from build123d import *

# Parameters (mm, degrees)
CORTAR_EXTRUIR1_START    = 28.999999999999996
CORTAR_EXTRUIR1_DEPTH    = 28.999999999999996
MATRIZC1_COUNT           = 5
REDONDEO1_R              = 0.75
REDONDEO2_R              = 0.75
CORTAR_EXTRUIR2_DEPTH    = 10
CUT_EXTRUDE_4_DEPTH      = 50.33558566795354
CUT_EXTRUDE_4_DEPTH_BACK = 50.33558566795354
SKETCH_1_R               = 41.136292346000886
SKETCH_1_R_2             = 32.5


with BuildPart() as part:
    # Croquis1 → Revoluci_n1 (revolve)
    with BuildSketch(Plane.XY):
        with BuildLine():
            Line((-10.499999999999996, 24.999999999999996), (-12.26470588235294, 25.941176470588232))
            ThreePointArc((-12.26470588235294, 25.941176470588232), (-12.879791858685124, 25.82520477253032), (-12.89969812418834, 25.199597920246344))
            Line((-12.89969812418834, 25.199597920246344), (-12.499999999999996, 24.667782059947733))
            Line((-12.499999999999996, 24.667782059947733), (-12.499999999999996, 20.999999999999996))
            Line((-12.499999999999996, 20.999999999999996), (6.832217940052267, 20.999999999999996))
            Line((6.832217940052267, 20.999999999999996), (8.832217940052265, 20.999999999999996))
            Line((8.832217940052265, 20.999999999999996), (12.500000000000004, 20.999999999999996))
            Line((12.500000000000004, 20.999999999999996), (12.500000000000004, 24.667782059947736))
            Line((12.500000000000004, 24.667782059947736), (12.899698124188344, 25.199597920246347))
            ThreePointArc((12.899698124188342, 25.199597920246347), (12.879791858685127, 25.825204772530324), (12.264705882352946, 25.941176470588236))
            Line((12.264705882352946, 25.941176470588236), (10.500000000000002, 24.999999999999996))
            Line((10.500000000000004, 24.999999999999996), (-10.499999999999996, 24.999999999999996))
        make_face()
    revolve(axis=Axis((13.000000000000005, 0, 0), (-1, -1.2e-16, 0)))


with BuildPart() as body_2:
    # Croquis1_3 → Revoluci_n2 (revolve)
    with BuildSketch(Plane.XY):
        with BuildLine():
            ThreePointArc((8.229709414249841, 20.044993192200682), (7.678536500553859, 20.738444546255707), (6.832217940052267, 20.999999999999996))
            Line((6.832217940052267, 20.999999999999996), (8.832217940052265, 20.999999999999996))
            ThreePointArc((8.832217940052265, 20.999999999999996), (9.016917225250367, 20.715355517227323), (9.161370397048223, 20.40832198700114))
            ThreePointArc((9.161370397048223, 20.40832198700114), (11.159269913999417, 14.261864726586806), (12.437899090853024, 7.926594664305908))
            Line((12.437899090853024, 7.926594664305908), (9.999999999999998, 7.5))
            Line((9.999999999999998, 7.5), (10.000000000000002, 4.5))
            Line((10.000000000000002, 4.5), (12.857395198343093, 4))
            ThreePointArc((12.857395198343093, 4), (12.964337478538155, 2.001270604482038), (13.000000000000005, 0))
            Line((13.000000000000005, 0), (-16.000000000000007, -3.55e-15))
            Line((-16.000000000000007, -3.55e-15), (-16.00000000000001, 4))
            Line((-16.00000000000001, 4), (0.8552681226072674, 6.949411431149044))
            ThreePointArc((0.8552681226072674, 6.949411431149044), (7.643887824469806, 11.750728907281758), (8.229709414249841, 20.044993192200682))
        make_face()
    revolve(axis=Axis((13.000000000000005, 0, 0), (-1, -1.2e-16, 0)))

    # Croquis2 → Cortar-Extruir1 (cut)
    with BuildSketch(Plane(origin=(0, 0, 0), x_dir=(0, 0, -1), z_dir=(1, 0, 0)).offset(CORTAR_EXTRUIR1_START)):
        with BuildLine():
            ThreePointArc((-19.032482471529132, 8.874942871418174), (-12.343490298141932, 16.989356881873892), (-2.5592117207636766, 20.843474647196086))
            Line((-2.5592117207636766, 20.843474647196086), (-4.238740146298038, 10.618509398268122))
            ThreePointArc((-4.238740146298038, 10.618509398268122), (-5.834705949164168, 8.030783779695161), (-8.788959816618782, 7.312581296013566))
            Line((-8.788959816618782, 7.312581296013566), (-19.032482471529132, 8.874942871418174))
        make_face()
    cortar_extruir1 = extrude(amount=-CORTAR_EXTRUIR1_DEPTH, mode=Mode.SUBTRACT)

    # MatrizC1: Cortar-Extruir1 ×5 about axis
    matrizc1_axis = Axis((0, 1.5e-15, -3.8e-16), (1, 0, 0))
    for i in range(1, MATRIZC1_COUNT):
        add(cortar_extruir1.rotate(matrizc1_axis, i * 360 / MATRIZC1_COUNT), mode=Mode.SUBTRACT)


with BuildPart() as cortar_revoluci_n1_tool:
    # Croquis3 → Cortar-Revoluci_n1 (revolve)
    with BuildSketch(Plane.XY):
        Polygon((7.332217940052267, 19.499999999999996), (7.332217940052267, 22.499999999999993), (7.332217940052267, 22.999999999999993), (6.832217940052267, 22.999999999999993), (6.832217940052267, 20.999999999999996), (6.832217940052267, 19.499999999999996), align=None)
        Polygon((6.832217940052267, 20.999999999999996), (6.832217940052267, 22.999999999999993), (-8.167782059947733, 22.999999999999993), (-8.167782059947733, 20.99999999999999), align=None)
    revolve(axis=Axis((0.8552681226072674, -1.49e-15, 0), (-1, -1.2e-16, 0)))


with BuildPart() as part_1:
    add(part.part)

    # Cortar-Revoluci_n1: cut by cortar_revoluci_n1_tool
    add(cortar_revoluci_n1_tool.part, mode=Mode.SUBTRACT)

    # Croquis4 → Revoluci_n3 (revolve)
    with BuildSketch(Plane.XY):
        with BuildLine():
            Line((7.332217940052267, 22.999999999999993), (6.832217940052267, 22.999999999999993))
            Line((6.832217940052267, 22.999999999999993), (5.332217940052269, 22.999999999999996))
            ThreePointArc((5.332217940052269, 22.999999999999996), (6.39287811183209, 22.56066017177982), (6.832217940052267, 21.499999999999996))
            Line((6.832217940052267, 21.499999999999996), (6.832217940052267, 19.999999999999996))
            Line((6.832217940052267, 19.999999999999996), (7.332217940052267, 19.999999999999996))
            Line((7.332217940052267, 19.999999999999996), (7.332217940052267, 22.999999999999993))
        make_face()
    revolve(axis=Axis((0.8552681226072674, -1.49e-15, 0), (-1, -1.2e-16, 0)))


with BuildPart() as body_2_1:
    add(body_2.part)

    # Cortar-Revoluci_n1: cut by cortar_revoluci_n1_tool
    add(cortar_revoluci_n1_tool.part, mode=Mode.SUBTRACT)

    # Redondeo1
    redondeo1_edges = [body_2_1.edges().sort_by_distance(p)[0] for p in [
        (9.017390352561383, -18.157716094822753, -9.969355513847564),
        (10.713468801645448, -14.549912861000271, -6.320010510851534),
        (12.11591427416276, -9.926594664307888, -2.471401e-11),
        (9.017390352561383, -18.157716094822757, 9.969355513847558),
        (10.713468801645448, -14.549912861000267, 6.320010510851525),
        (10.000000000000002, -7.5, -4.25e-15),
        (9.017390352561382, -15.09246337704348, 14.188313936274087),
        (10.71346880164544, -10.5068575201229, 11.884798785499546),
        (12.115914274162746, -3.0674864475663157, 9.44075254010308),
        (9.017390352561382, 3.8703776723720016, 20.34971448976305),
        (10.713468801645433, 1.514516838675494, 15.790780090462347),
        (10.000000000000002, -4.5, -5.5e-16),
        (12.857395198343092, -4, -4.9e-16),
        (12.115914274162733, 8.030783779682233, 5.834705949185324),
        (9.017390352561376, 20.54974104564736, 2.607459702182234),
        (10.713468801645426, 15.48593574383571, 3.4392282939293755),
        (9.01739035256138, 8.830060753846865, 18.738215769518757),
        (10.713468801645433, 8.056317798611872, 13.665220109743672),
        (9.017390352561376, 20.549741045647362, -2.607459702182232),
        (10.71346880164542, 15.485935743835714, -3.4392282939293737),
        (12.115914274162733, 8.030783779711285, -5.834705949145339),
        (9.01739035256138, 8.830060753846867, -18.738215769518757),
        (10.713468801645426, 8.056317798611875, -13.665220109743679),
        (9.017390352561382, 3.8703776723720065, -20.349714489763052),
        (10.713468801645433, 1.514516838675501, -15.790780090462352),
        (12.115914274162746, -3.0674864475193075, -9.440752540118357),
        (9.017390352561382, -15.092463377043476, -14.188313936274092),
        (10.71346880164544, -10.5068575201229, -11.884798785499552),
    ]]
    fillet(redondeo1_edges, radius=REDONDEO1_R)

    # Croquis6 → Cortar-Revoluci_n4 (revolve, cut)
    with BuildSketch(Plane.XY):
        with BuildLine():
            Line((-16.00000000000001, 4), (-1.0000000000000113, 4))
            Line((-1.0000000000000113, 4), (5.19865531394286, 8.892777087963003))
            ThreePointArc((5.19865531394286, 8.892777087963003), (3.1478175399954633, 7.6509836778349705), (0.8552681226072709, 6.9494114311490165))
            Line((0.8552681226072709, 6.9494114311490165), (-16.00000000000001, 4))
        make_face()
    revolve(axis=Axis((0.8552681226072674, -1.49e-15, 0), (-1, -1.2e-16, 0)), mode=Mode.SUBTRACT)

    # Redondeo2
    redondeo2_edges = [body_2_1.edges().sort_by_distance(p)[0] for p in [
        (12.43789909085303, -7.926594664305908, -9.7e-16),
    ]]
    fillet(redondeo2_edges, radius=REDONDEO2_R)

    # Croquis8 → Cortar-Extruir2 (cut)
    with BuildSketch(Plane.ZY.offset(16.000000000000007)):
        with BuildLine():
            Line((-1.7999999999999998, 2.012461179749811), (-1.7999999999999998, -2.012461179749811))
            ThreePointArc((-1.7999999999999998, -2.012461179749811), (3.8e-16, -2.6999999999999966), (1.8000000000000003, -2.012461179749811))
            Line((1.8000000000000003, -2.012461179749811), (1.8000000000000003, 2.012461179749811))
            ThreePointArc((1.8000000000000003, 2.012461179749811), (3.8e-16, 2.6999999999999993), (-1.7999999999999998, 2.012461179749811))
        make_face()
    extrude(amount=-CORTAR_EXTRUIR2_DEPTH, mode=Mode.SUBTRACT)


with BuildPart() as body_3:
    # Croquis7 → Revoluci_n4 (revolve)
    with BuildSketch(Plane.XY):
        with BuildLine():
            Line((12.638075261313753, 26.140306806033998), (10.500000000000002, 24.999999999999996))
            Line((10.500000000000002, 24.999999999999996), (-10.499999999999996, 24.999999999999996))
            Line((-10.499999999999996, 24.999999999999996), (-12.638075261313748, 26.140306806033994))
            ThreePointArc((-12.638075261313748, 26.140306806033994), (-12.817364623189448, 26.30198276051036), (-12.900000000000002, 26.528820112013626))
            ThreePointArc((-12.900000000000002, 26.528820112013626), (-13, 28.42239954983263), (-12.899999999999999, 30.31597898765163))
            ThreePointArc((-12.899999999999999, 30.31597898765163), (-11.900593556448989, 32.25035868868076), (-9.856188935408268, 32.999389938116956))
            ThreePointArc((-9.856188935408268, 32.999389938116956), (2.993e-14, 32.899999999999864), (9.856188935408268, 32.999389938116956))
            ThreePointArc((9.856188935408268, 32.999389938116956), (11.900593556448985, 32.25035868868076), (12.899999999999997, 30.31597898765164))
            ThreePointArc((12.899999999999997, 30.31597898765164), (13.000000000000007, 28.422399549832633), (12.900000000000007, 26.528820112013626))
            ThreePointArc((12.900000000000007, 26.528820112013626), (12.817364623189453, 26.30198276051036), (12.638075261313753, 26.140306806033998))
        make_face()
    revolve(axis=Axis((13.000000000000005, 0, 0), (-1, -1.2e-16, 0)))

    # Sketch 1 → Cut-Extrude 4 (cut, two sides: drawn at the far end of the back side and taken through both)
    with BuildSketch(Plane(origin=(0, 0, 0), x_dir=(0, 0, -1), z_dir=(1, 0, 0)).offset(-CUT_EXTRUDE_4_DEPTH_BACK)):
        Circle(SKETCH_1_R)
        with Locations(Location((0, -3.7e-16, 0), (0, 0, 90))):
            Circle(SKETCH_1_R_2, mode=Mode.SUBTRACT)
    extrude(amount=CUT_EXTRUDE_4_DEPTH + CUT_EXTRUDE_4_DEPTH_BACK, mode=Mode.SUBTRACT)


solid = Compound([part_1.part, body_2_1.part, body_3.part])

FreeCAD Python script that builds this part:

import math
import FreeCAD as App
import Part
import Sketcher
from FreeCAD import Vector


def edges_at(feature, points):
    """Names of the edges that pass closest to the given points."""
    edges = feature.Shape.Edges
    near = lambda p: min(range(len(edges)), key=lambda i: edges[i].distToShape(Part.Vertex(*p))[0])
    return sorted({f"Edge{near(p) + 1}" for p in points})

doc = App.newDocument("Part")
body = doc.addObject("PartDesign::Body", "Body")

sketch1 = body.newObject("Sketcher::SketchObject", "Sketch")
sketch1.AttachmentSupport = (doc.getObject("XY_Plane"), [""])
sketch1.MapMode = "FlatFace"
sketch1.addGeometry([
    Part.LineSegment(Vector(-10.5, 25, 0), Vector(-12.3, 25.9, 0)),
    Part.ArcOfCircle(Part.Circle(Vector(-12.5, 25.5, 0), Vector(0, 0, 1), 0.5), math.radians(62), math.radians(217)),
    Part.LineSegment(Vector(-12.9, 25.2, 0), Vector(-12.5, 24.7, 0)),
    Part.LineSegment(Vector(-12.5, 24.7, 0), Vector(-12.5, 21, 0)),
    Part.LineSegment(Vector(-12.5, 21, 0), Vector(12.5, 21, 0)),
    Part.LineSegment(Vector(12.5, 21, 0), Vector(12.5, 24.7, 0)),
    Part.LineSegment(Vector(12.5, 24.7, 0), Vector(12.9, 25.2, 0)),
    Part.ArcOfCircle(Part.Circle(Vector(12.5, 25.5, 0), Vector(0, 0, 1), 0.5), math.radians(-37), math.radians(118)),
    Part.LineSegment(Vector(12.3, 25.9, 0), Vector(10.5, 25, 0)),
    Part.LineSegment(Vector(10.5, 25, 0), Vector(-10.5, 25, 0)),
], False)
sketch1.addConstraint([
    Sketcher.Constraint("Tangent", 0, 2, 1, 1),
    Sketcher.Constraint("Tangent", 1, 2, 2, 1),
    Sketcher.Constraint("Coincident", 2, 2, 3, 1),
    Sketcher.Constraint("Coincident", 3, 2, 4, 1),
    Sketcher.Constraint("Coincident", 4, 2, 5, 1),
    Sketcher.Constraint("Coincident", 5, 2, 6, 1),
    Sketcher.Constraint("Tangent", 6, 2, 7, 1),
    Sketcher.Constraint("Tangent", 7, 2, 8, 1),
    Sketcher.Constraint("Coincident", 8, 2, 9, 1),
    Sketcher.Constraint("Coincident", 9, 2, 0, 1),
    Sketcher.Constraint("Vertical", 3),
    Sketcher.Constraint("Horizontal", 4),
    Sketcher.Constraint("Vertical", 5),
    Sketcher.Constraint("Horizontal", 9),
    Sketcher.Constraint("Equal", 1, 7),
    Sketcher.Constraint("Symmetric", 1, 3, 7, 3, -2),
    Sketcher.Constraint("Symmetric", 2, 2, 5, 2, -2),
    Sketcher.Constraint("Horizontal", 0, 2, 7, 2),
    Sketcher.Constraint("Vertical", 1, 3, 2, 2),
    Sketcher.Constraint("Radius", 1, 0.5),
    Sketcher.Constraint("DistanceX", 4, 1, 4, 2, 25.0),
    Sketcher.Constraint("DistanceX", 9, 2, 9, 1, 21.0),
    Sketcher.Constraint("Distance", 0, 2.0),
    Sketcher.Constraint("DistanceY", -1, 1, 3, 2, 21.0),
    Sketcher.Constraint("DistanceY", -1, 1, 8, 2, 25.0),
    Sketcher.Constraint("DistanceX", 1, 2, -1, 1, 12.899698),
])
revolution = body.newObject("PartDesign::Revolution", "Revolution")
revolution.Profile = sketch1
revolution.ReferenceAxis = (sketch1, ["H_Axis"])
revolution.Angle = 360
body2 = doc.addObject("PartDesign::Body", "Body001")

sketch2 = body2.newObject("Sketcher::SketchObject", "Sketch001")
sketch2.AttachmentSupport = (doc.getObject("XY_Plane001"), [""])
sketch2.MapMode = "FlatFace"
sketch2.addGeometry([
    Part.ArcOfCircle(Part.Circle(Vector(6.8, 19.5, 0), Vector(0, 0, 1), 1.5), math.radians(21), math.radians(90)),
    Part.ArcOfCircle(Part.Circle(Vector(-0.8, 16.5, 0), Vector(0, 0, 1), 9.7), math.radians(-80), math.radians(21)),
    Part.LineSegment(Vector(0.9, 6.9, 0), Vector(-16, 4, 0)),
    Part.LineSegment(Vector(-16, 4, 0), Vector(-16, 0, 0)),
    Part.LineSegment(Vector(-16, 0, 0), Vector(13, 0, 0)),
    Part.ArcOfCircle(Part.Circle(Vector(-43.2, 0, 0), Vector(0, 0, 1), 56.2), math.radians(0), math.radians(4.08)),
    Part.LineSegment(Vector(12.9, 4, 0), Vector(10, 4.5, 0)),
    Part.LineSegment(Vector(10, 4.5, 0), Vector(10, 7.5, 0)),
    Part.LineSegment(Vector(10, 7.5, 0), Vector(12.4, 7.9, 0)),
    Part.ArcOfCircle(Part.Circle(Vector(-43.2, 0, 0), Vector(0, 0, 1), 56.2), math.radians(8.11), math.radians(21.3)),
    Part.ArcOfCircle(Part.Circle(Vector(6.8, 19.5, 0), Vector(0, 0, 1), 2.5), math.radians(21.3), math.radians(36.87)),
    Part.LineSegment(Vector(8.8, 21, 0), Vector(6.8, 21, 0)),
], False)
sketch2.addConstraint([
    Sketcher.Constraint("Tangent", 0, 1, 1, 2),
    Sketcher.Constraint("Tangent", 1, 1, 2, 1),
    Sketcher.Constraint("Coincident", 2, 2, 3, 1),
    Sketcher.Constraint("Coincident", 3, 2, 4, 1),
    Sketcher.Constraint("Coincident", 4, 2, 5, 1),
    Sketcher.Constraint("Coincident", 5, 2, 6, 1),
    Sketcher.Constraint("Coincident", 6, 2, 7, 1),
    Sketcher.Constraint("Coincident", 7, 2, 8, 1),
    Sketcher.Constraint("Coincident", 8, 2, 9, 1),
    Sketcher.Constraint("Tangent", 9, 2, 10, 1),
    Sketcher.Constraint("Coincident", 10, 2, 11, 1),
    Sketcher.Constraint("Tangent", 11, 2, 0, 2),
    Sketcher.Constraint("Vertical", 3),
    Sketcher.Constraint("Horizontal", 4),
    Sketcher.Constraint("Vertical", 7),
    Sketcher.Constraint("Horizontal", 11),
    Sketcher.Constraint("Coincident", 9, 3, 5, 3),
    Sketcher.Constraint("Coincident", 10, 3, 0, 3),
    Sketcher.Constraint("Equal", 5, 9),
    Sketcher.Constraint("PointOnObject", 5, 3, -1),
    Sketcher.Constraint("PointOnObject", 3, 2, -1),
    Sketcher.Constraint("Parallel", 2, 8),
    Sketcher.Constraint("Horizontal", 2, 2, 5, 2),
    Sketcher.Constraint("Radius", 0, 1.5),
    Sketcher.Constraint("Radius", 10, 2.5),
    Sketcher.Constraint("DistanceX", 4, 1, 4, 2, 29.0),
    Sketcher.Constraint("DistanceY", 3, 2, 3, 1, 4.0),
    Sketcher.Constraint("DistanceY", 7, 1, 7, 2, 3.0),
    Sketcher.Constraint("DistanceX", 2, 2, -1, 1, 16.0),
    Sketcher.Constraint("DistanceX", -1, 1, 6, 2, 10.0),
    Sketcher.Constraint("DistanceY", -1, 1, 10, 2, 21.0),
    Sketcher.Constraint("DistanceY", 6, 2, 0, 3, 15.0),
    Sketcher.Constraint("Radius", 1, 9.712216),
    Sketcher.Constraint("Radius", 5, 56.170395),
    Sketcher.Constraint("DistanceX", 1, 3, 0, 3, 7.651001),
])
revolution2 = body2.newObject("PartDesign::Revolution", "Revolution001")
revolution2.Profile = sketch2
revolution2.ReferenceAxis = (sketch2, ["H_Axis"])
revolution2.Angle = 360

sketch3 = body2.newObject("Sketcher::SketchObject", "Sketch002")
sketch3.AttachmentSupport = (doc.getObject("YZ_Plane001"), [""])
sketch3.MapMode = "FlatFace"
sketch3.AttachmentOffset = App.Placement(Vector(0, 0, 29), App.Rotation())
sketch3.addGeometry([
    Part.ArcOfCircle(Part.Circle(Vector(0, 0, 0), Vector(0, 0, 1), 21), math.radians(7), math.radians(65)),
    Part.LineSegment(Vector(8.9, 19, 0), Vector(7.3, 8.8, 0)),
    Part.ArcOfCircle(Part.Circle(Vector(11.3, 8.2, 0), Vector(0, 0, 1), 4), math.radians(171), math.radians(261)),
    Part.LineSegment(Vector(10.6, 4.2, 0), Vector(20.8, 2.6, 0)),
], False)
sketch3.addConstraint([
    Sketcher.Constraint("Coincident", 0, 2, 1, 1),
    Sketcher.Constraint("Tangent", 1, 2, 2, 1),
    Sketcher.Constraint("Tangent", 2, 2, 3, 1),
    Sketcher.Constraint("Coincident", 3, 2, 0, 1),
    Sketcher.Constraint("Coincident", 0, 3, -1, 1),
    Sketcher.Constraint("Equal", 1, 3),
    Sketcher.Constraint("Radius", 0, 21.0),
    Sketcher.Constraint("Radius", 2, 4.0),
    Sketcher.Constraint("DistanceX", -1, 1, 2, 3, 11.266852),
    Sketcher.Constraint("DistanceX", -1, 1, 1, 2, 7.312581),
    Sketcher.Constraint("DistanceY", -1, 1, 1, 2, 8.78896),
])
pocket1 = body2.newObject("PartDesign::Pocket", "Pocket")
pocket1.Profile = sketch3
pocket1.Length = 29
doc.recompute()

polarpattern = body2.newObject("PartDesign::PolarPattern", "PolarPattern")
polarpattern.Originals = [pocket1]
polarpattern.Axis = (doc.getObject("X_Axis001"), [""])
polarpattern.Angle = 360
polarpattern.Occurrences = 5
body2.Tip = polarpattern
body3 = doc.addObject("PartDesign::Body", "Body002")

sketch4 = body3.newObject("Sketcher::SketchObject", "Sketch003")
sketch4.AttachmentSupport = (doc.getObject("XY_Plane002"), [""])
sketch4.MapMode = "FlatFace"
sketch4.addGeometry([
    Part.LineSegment(Vector(7.3, 19.5, 0), Vector(7.3, 23, 0)),
    Part.LineSegment(Vector(7.3, 23, 0), Vector(-8.2, 23, 0)),
    Part.LineSegment(Vector(-8.2, 23, 0), Vector(-8.2, 21, 0)),
    Part.LineSegment(Vector(-8.2, 21, 0), Vector(6.8, 21, 0)),
    Part.LineSegment(Vector(6.8, 21, 0), Vector(6.8, 19.5, 0)),
    Part.LineSegment(Vector(6.8, 19.5, 0), Vector(7.3, 19.5, 0)),
], False)
sketch4.addConstraint([
    Sketcher.Constraint("Coincident", 0, 2, 1, 1),
    Sketcher.Constraint("Coincident", 1, 2, 2, 1),
    Sketcher.Constraint("Coincident", 2, 2, 3, 1),
    Sketcher.Constraint("Coincident", 3, 2, 4, 1),
    Sketcher.Constraint("Coincident", 4, 2, 5, 1),
    Sketcher.Constraint("Coincident", 5, 2, 0, 1),
    Sketcher.Constraint("Vertical", 0),
    Sketcher.Constraint("Horizontal", 1),
    Sketcher.Constraint("Vertical", 2),
    Sketcher.Constraint("Horizontal", 3),
    Sketcher.Constraint("Vertical", 4),
    Sketcher.Constraint("Horizontal", 5),
    Sketcher.Constraint("DistanceX", 3, 1, 3, 2, 15.0),
    Sketcher.Constraint("DistanceY", 2, 2, 2, 1, 2.0),
    Sketcher.Constraint("DistanceX", 1, 2, 1, 1, 15.5),
    Sketcher.Constraint("DistanceY", 0, 1, 0, 2, 3.5),
    Sketcher.Constraint("DistanceY", -1, 1, 0, 2, 23.0),
    Sketcher.Constraint("DistanceX", -1, 1, 0, 2, 7.332218),
])
revolution3 = body3.newObject("PartDesign::Revolution", "Revolution002")
revolution3.Profile = sketch4
revolution3.ReferenceAxis = (sketch4, ["H_Axis"])
revolution3.Angle = 360
doc.recompute()

body4 = doc.addObject("PartDesign::Body", "Body003")
body4.BaseFeature = body3
boolean = body.newObject("PartDesign::Boolean", "Boolean")
boolean.Type = "Cut"
boolean.addObjects([body4])
doc.recompute()

sketch5 = body.newObject("Sketcher::SketchObject", "Sketch004")
sketch5.AttachmentSupport = (doc.getObject("XY_Plane"), [""])
sketch5.MapMode = "FlatFace"
sketch5.addGeometry([
    Part.LineSegment(Vector(7.3, 23, 0), Vector(5.3, 23, 0)),
    Part.ArcOfCircle(Part.Circle(Vector(5.3, 21.5, 0), Vector(0, 0, 1), 1.5), math.radians(0), math.radians(90)),
    Part.LineSegment(Vector(6.8, 21.5, 0), Vector(6.8, 20, 0)),
    Part.LineSegment(Vector(6.8, 20, 0), Vector(7.3, 20, 0)),
    Part.LineSegment(Vector(7.3, 20, 0), Vector(7.3, 23, 0)),
], False)
sketch5.addConstraint([
    Sketcher.Constraint("Tangent", 0, 2, 1, 2),
    Sketcher.Constraint("Tangent", 1, 1, 2, 1),
    Sketcher.Constraint("Coincident", 2, 2, 3, 1),
    Sketcher.Constraint("Coincident", 3, 2, 4, 1),
    Sketcher.Constraint("Coincident", 4, 2, 0, 1),
    Sketcher.Constraint("Horizontal", 0),
    Sketcher.Constraint("Vertical", 2),
    Sketcher.Constraint("Horizontal", 3),
    Sketcher.Constraint("Vertical", 4),
    Sketcher.Constraint("Radius", 1, 1.5),
    Sketcher.Constraint("DistanceX", 0, 2, 0, 1, 2.0),
    Sketcher.Constraint("DistanceY", 4, 1, 4, 2, 3.0),
    Sketcher.Constraint("DistanceY", -1, 1, 0, 2, 23.0),
    Sketcher.Constraint("DistanceX", -1, 1, 1, 3, 5.332218),
])
revolution4 = body.newObject("PartDesign::Revolution", "Revolution003")
revolution4.Profile = sketch5
revolution4.ReferenceAxis = (sketch5, ["H_Axis"])
revolution4.Angle = 360
doc.recompute()

boolean2 = body2.newObject("PartDesign::Boolean", "Boolean001")
boolean2.Type = "Cut"
boolean2.addObjects([body3])
doc.recompute()

fillet = body2.newObject("PartDesign::Fillet", "Fillet")
fillet.Base = (boolean2, edges_at(boolean2, [
    (9.017, -18.158, -9.969),
    (10.713, -14.55, -6.32),
    (12.116, -9.927, 0),
    (9.017, -18.158, 9.969),
    (10.713, -14.55, 6.32),
    (10, -7.5, 0),
    (9.017, -15.092, 14.188),
    (10.713, -10.507, 11.885),
    (12.116, -3.067, 9.441),
    (9.017, 3.87, 20.35),
    (10.713, 1.515, 15.791),
    (10, -4.5, 0),
    (12.857, -4, 0),
    (12.116, 8.031, 5.835),
    (9.017, 20.55, 2.607),
    (10.713, 15.486, 3.439),
    (9.017, 8.83, 18.738),
    (10.713, 8.056, 13.665),
    (9.017, 20.55, -2.607),
    (10.713, 15.486, -3.439),
    (12.116, 8.031, -5.835),
    (9.017, 8.83, -18.738),
    (10.713, 8.056, -13.665),
    (9.017, 3.87, -20.35),
    (10.713, 1.515, -15.791),
    (12.116, -3.067, -9.441),
    (9.017, -15.092, -14.188),
    (10.713, -10.507, -11.885),
]))
fillet.Radius = 0.75

sketch6 = body2.newObject("Sketcher::SketchObject", "Sketch005")
sketch6.AttachmentSupport = (doc.getObject("XY_Plane001"), [""])
sketch6.MapMode = "FlatFace"
sketch6.addGeometry([
    Part.LineSegment(Vector(-16, 4, 0), Vector(-1, 4, 0)),
    Part.LineSegment(Vector(-1, 4, 0), Vector(5.2, 8.9, 0)),
    Part.ArcOfCircle(Part.Circle(Vector(-0.8, 16.5, 0), Vector(0, 0, 1), 9.7), math.radians(-80), math.radians(-52)),
    Part.LineSegment(Vector(0.9, 6.9, 0), Vector(-16, 4, 0)),
], False)
sketch6.addConstraint([
    Sketcher.Constraint("Coincident", 0, 2, 1, 1),
    Sketcher.Constraint("Tangent", 1, 2, 2, 2),
    Sketcher.Constraint("Tangent", 2, 1, 3, 1),
    Sketcher.Constraint("Coincident", 3, 2, 0, 1),
    Sketcher.Constraint("Horizontal", 0),
    Sketcher.Constraint("DistanceX", 0, 1, 0, 2, 15.0),
    Sketcher.Constraint("DistanceX", 0, 2, -1, 1, 1.0),
    Sketcher.Constraint("DistanceY", -1, 1, 0, 2, 4.0),
    Sketcher.Constraint("Distance", 1, 7.896999),
    Sketcher.Constraint("Radius", 2, 9.712216),
    Sketcher.Constraint("DistanceX", -1, 1, 2, 1, 0.855268),
])
groove = body2.newObject("PartDesign::Groove", "Groove")
groove.Profile = sketch6
groove.ReferenceAxis = (sketch6, ["H_Axis"])
groove.Angle = 360
doc.recompute()

fillet2 = body2.newObject("PartDesign::Fillet", "Fillet001")
fillet2.Base = (groove, edges_at(groove, [(12.438, -7.927, 0)]))
fillet2.Radius = 0.75

sketch7 = body2.newObject("Sketcher::SketchObject", "Sketch006")
sketch7.AttachmentSupport = (doc.getObject("YZ_Plane001"), [""])
sketch7.MapMode = "FlatFace"
sketch7.AttachmentOffset = App.Placement(Vector(0, 0, -16), App.Rotation())
sketch7.addGeometry([
    Part.LineSegment(Vector(2, -1.8, 0), Vector(-2, -1.8, 0)),
    Part.ArcOfCircle(Part.Circle(Vector(0, 0, 0), Vector(0, 0, 1), 2.7), math.radians(138), math.radians(222)),
    Part.LineSegment(Vector(-2, 1.8, 0), Vector(2, 1.8, 0)),
    Part.ArcOfCircle(Part.Circle(Vector(0, 0, 0), Vector(0, 0, 1), 2.7), math.radians(-42), math.radians(42)),
], False)
sketch7.addConstraint([
    Sketcher.Constraint("Coincident", 0, 2, 1, 2),
    Sketcher.Constraint("Coincident", 1, 1, 2, 1),
    Sketcher.Constraint("Coincident", 2, 2, 3, 2),
    Sketcher.Constraint("Coincident", 3, 1, 0, 1),
    Sketcher.Constraint("Horizontal", 0),
    Sketcher.Constraint("Horizontal", 2),
    Sketcher.Constraint("Coincident", 1, 3, -1, 1),
    Sketcher.Constraint("Coincident", 3, 3, -1, 1),
    Sketcher.Constraint("Equal", 1, 3),
    Sketcher.Constraint("Vertical", 0, 2, 1, 1),
    Sketcher.Constraint("Radius", 1, 2.7),
    Sketcher.Constraint("DistanceY", 0, 2, -1, 1, 1.8),
])
pocket2 = body2.newObject("PartDesign::Pocket", "Pocket001")
pocket2.Profile = sketch7
pocket2.Length = 10
pocket2.Reversed = True
body5 = doc.addObject("PartDesign::Body", "Body004")

sketch8 = body5.newObject("Sketcher::SketchObject", "Sketch007")
sketch8.AttachmentSupport = (doc.getObject("XY_Plane004"), [""])
sketch8.MapMode = "FlatFace"
sketch8.addGeometry([
    Part.LineSegment(Vector(10.5, 25, 0), Vector(12.64, 26.14, 0)),
    Part.ArcOfCircle(Part.Circle(Vector(12.4, 26.58, 0), Vector(0, 0, 1), 0.5), math.radians(-62), math.radians(-6)),
    Part.ArcOfCircle(Part.Circle(Vector(-4.98, 28.42, 0), Vector(0, 0, 1), 17.98), math.radians(-6.05), math.radians(6.05)),
    Part.ArcOfCircle(Part.Circle(Vector(9.92, 30, 0), Vector(0, 0, 1), 3), math.radians(6), math.radians(91)),
    Part.ArcOfCircle(Part.Circle(Vector(0, 521.65, 0), Vector(0, 0, 1), 488.75), math.radians(-91.16), math.radians(-88.84)),
    Part.ArcOfCircle(Part.Circle(Vector(-9.92, 30, 0), Vector(0, 0, 1), 3), math.radians(89), math.radians(174)),
    Part.ArcOfCircle(Part.Circle(Vector(4.98, 28.42, 0), Vector(0, 0, 1), 17.98), math.radians(173.95), math.radians(186.05)),
    Part.ArcOfCircle(Part.Circle(Vector(-12.4, 26.58, 0), Vector(0, 0, 1), 0.5), math.radians(-174), math.radians(-118)),
    Part.LineSegment(Vector(-12.64, 26.14, 0), Vector(-10.5, 25, 0)),
    Part.LineSegment(Vector(-10.5, 25, 0), Vector(10.5, 25, 0)),
], False)
sketch8.addConstraint([
    Sketcher.Constraint("Tangent", 0, 2, 1, 1),
    Sketcher.Constraint("Tangent", 1, 2, 2, 1),
    Sketcher.Constraint("Tangent", 2, 2, 3, 1),
    Sketcher.Constraint("Tangent", 3, 2, 4, 2),
    Sketcher.Constraint("Tangent", 4, 1, 5, 1),
    Sketcher.Constraint("Tangent", 5, 2, 6, 1),
    Sketcher.Constraint("Tangent", 6, 2, 7, 1),
    Sketcher.Constraint("Tangent", 7, 2, 8, 1),
    Sketcher.Constraint("Coincident", 8, 2, 9, 1),
    Sketcher.Constraint("Coincident", 9, 2, 0, 1),
    Sketcher.Constraint("Horizontal", 9),
    Sketcher.Constraint("Equal", 3, 5),
    Sketcher.Constraint("Equal", 2, 6),
    Sketcher.Constraint("Equal", 1, 7),
    Sketcher.Constraint("Symmetric", 3, 3, 5, 3, -2),
    Sketcher.Constraint("Symmetric", 1, 3, 7, 3, -2),
    Sketcher.Constraint("Horizontal", 0, 2, 7, 2),
    Sketcher.Constraint("Vertical", 1, 2, 2, 2),
    Sketcher.Constraint("Radius", 3, 3.0),
    Sketcher.Constraint("Radius", 1, 0.5),
    Sketcher.Constraint("DistanceX", 9, 1, 9, 2, 21.0),
    Sketcher.Constraint("DistanceY", -1, 1, 3, 3, 30.0),
    Sketcher.Constraint("DistanceY", -1, 1, 8, 2, 25.0),
    Sketcher.Constraint("DistanceX", -1, 1, 1, 2, 12.9),
    Sketcher.Constraint("Radius", 4, 488.753392),
    Sketcher.Constraint("Radius", 2, 17.978215),
    Sketcher.Constraint("DistanceY", -1, 1, 2, 3, 28.4224),
])
revolution5 = body5.newObject("PartDesign::Revolution", "Revolution004")
revolution5.Profile = sketch8
revolution5.ReferenceAxis = (sketch8, ["H_Axis"])
revolution5.Angle = 360

sketch9 = body5.newObject("Sketcher::SketchObject", "Sketch008")
sketch9.AttachmentSupport = (doc.getObject("YZ_Plane004"), [""])
sketch9.MapMode = "FlatFace"
sketch9.addGeometry([
    Part.Circle(Vector(0, 0, 0), Vector(0, 0, 1), 41),
    Part.Circle(Vector(0, 0, 0), Vector(0, 0, 1), 32),
], False)
sketch9.addConstraint([
    Sketcher.Constraint("Coincident", 0, 3, -1, 1),
    Sketcher.Constraint("Coincident", 1, 3, -1, 1),
    Sketcher.Constraint("Diameter", 1, 65.0),
    Sketcher.Constraint("Diameter", 0, 82.272585),
])
pocket3 = body5.newObject("PartDesign::Pocket", "Pocket002")
pocket3.Profile = sketch9
pocket3.Type = "ThroughAll"
pocket3.Midplane = True

doc.recompute()
